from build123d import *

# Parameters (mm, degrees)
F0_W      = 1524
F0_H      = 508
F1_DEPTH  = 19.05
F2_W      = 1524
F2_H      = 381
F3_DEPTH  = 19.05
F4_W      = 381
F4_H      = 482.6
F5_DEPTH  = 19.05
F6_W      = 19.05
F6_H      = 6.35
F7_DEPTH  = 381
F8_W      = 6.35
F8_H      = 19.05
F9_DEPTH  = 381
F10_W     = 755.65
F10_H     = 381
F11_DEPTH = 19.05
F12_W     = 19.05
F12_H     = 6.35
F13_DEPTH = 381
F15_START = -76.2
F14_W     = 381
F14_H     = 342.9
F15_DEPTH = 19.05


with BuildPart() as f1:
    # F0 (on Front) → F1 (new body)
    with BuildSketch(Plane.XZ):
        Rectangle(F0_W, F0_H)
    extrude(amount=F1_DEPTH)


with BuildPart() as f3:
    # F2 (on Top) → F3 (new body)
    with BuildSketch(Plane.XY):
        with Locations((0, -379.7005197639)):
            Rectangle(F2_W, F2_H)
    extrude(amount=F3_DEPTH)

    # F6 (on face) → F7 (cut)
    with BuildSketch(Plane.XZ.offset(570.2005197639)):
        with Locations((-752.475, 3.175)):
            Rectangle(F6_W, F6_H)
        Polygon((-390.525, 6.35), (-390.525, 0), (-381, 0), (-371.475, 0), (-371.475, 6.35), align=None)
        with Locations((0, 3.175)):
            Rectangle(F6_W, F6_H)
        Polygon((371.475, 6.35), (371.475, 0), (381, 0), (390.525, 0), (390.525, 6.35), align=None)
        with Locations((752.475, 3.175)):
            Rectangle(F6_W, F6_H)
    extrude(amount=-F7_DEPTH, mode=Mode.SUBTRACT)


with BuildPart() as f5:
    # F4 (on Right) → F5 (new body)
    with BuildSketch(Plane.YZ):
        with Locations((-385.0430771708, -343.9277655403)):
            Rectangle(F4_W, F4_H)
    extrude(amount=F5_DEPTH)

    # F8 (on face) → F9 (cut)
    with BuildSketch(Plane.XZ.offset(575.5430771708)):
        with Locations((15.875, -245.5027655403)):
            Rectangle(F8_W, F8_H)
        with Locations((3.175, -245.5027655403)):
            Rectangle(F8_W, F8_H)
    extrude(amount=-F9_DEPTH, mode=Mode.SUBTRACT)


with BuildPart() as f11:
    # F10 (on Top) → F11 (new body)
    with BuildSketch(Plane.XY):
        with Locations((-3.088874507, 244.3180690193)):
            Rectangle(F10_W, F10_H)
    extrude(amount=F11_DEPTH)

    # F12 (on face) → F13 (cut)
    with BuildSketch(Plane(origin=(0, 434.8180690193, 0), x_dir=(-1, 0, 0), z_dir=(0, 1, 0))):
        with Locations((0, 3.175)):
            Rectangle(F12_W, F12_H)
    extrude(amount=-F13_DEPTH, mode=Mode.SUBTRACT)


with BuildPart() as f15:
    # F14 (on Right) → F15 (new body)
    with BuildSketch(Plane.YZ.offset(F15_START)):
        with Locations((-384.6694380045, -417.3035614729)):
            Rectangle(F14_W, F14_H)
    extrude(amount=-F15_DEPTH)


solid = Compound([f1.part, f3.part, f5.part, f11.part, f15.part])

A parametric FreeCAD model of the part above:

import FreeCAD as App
import Part
import Sketcher
Q = App.Units.Quantity

doc = App.newDocument("Part")
params = doc.addObject("Spreadsheet::Sheet", "Params")
for row, (alias, value) in enumerate([
    ("sketch1_width", "60 in"),
    ("sketch1_height", "20 in"),
    ("pad1_length", "0.75 in"),
    ("sketch2_width", "60 in"),
    ("sketch2_height", "15 in"),
    ("pad2_length", "0.75 in"),
    ("sketch3_width", "0.75 in"),
    ("sketch3_height", "0.25 in"),
    ("pocket1_length", "15 in"),
    ("sketch4_width", "15 in"),
    ("sketch4_height", "19 in"),
    ("pad3_length", "0.75 in"),
    ("sketch5_width", "0.25 in"),
    ("sketch5_height", "0.75 in"),
    ("pocket2_length", "15 in"),
    ("sketch6_height", "15 in"),
    ("sketch6_width", "29.75 in"),
    ("pad4_length", "0.75 in"),
    ("sketch7_width", "0.75 in"),
    ("sketch7_height", "0.25 in"),
    ("pocket3_length", "15 in"),
    ("sketch8_width", "15 in"),
    ("sketch8_height", "13.5 in"),
    ("pad5_length", "0.75 in"),
], start=1):
    params.set(f"A{row}", alias)
    params.set(f"B{row}", "=" + value)
    params.setAlias(f"B{row}", alias)

body = doc.addObject("PartDesign::Body", "Body")

# Sketch on XZ plane
sketch1 = body.newObject("Sketcher::SketchObject", "Sketch")
sketch1.AttachmentSupport = (doc.getObject("XZ_Plane"), [""])
sketch1.MapMode = "FlatFace"
sketch1.addGeometry(Part.LineSegment(App.Vector(-762, 254, 0), App.Vector(-762, -254, 0)), False)
sketch1.addGeometry(Part.LineSegment(App.Vector(-762, -254, 0), App.Vector(762, -254, 0)), False)
sketch1.addGeometry(Part.LineSegment(App.Vector(762, -254, 0), App.Vector(762, 254, 0)), False)
sketch1.addGeometry(Part.LineSegment(App.Vector(762, 254, 0), App.Vector(-762, 254, 0)), False)
sketch1.addConstraint(Sketcher.Constraint("Coincident", 0, 2, 1, 1))
sketch1.addConstraint(Sketcher.Constraint("Coincident", 1, 2, 2, 1))
sketch1.addConstraint(Sketcher.Constraint("Coincident", 2, 2, 3, 1))
sketch1.addConstraint(Sketcher.Constraint("Coincident", 3, 2, 0, 1))
sketch1.addConstraint(Sketcher.Constraint("Vertical", 0))
sketch1.addConstraint(Sketcher.Constraint("Horizontal", 1))
sketch1.addConstraint(Sketcher.Constraint("Vertical", 2))
sketch1.addConstraint(Sketcher.Constraint("Horizontal", 3))
sketch1.addConstraint(Sketcher.Constraint("Symmetric", 0, 2, 2, 2, -1, 1))
sketch1.addConstraint(Sketcher.Constraint("DistanceX", 1, 1, 1, 2, Q("60 in")))
sketch1.addConstraint(Sketcher.Constraint("DistanceY", 0, 2, 0, 1, Q("20 in")))
sketch1.setExpression("Constraints[9]", "Params.sketch1_width")
sketch1.setExpression("Constraints[10]", "Params.sketch1_height")
pad1 = body.newObject("PartDesign::Pad", "Pad")
pad1.Profile = sketch1
pad1.setExpression("Length", "Params.pad1_length")
body2 = doc.addObject("PartDesign::Body", "Body001")

# Sketch on XY plane
sketch2 = body2.newObject("Sketcher::SketchObject", "Sketch001")
sketch2.AttachmentSupport = (doc.getObject("XY_Plane001"), [""])
sketch2.MapMode = "FlatFace"
sketch2.addGeometry(Part.LineSegment(App.Vector(-762, -189.20052, 0), App.Vector(-762, -570.20052, 0)), False)
sketch2.addGeometry(Part.LineSegment(App.Vector(-762, -570.20052, 0), App.Vector(762, -570.20052, 0)), False)
sketch2.addGeometry(Part.LineSegment(App.Vector(762, -570.20052, 0), App.Vector(762, -189.20052, 0)), False)
sketch2.addGeometry(Part.LineSegment(App.Vector(762, -189.20052, 0), App.Vector(-762, -189.20052, 0)), False)
sketch2.addConstraint(Sketcher.Constraint("Coincident", 0, 2, 1, 1))
sketch2.addConstraint(Sketcher.Constraint("Coincident", 1, 2, 2, 1))
sketch2.addConstraint(Sketcher.Constraint("Coincident", 2, 2, 3, 1))
sketch2.addConstraint(Sketcher.Constraint("Coincident", 3, 2, 0, 1))
sketch2.addConstraint(Sketcher.Constraint("Vertical", 0))
sketch2.addConstraint(Sketcher.Constraint("Horizontal", 1))
sketch2.addConstraint(Sketcher.Constraint("Vertical", 2))
sketch2.addConstraint(Sketcher.Constraint("Horizontal", 3))
sketch2.addConstraint(Sketcher.Constraint("DistanceX", 1, 1, 1, 2, Q("60 in")))
sketch2.addConstraint(Sketcher.Constraint("DistanceY", 0, 2, 0, 1, Q("15 in")))
sketch2.addConstraint(Sketcher.Constraint("DistanceX", 0, 2, -1, 1, Q("30 in")))
sketch2.addConstraint(Sketcher.Constraint("DistanceY", 0, 2, -1, 1, Q("570.20052 mm")))
sketch2.setExpression("Constraints[8]", "Params.sketch2_width")
sketch2.setExpression("Constraints[9]", "Params.sketch2_height")
pad2 = body2.newObject("PartDesign::Pad", "Pad001")
pad2.Profile = sketch2
pad2.setExpression("Length", "Params.pad2_length")

# Sketch on XZ plane
sketch3 = body2.newObject("Sketcher::SketchObject", "Sketch002")
sketch3.AttachmentSupport = (doc.getObject("XZ_Plane001"), [""])
sketch3.MapMode = "FlatFace"
sketch3.AttachmentOffset = App.Placement(App.Vector(0, 0, 570.20052), App.Rotation())
sketch3.addGeometry(Part.LineSegment(App.Vector(-762, 6.35, 0), App.Vector(-762, 0, 0)), False)
sketch3.addGeometry(Part.LineSegment(App.Vector(-762, 0, 0), App.Vector(-742.95, 0, 0)), False)
sketch3.addGeometry(Part.LineSegment(App.Vector(-742.95, 0, 0), App.Vector(-742.95, 6.35, 0)), False)
sketch3.addGeometry(Part.LineSegment(App.Vector(-742.95, 6.35, 0), App.Vector(-762, 6.35, 0)), False)
sketch3.addGeometry(Part.LineSegment(App.Vector(-390.525, 6.35, 0), App.Vector(-390.525, 0, 0)), False)
sketch3.addGeometry(Part.LineSegment(App.Vector(-390.525, 0, 0), App.Vector(-371.475, 0, 0)), False)
sketch3.addGeometry(Part.LineSegment(App.Vector(-371.475, 0, 0), App.Vector(-371.475, 6.35, 0)), False)
sketch3.addGeometry(Part.LineSegment(App.Vector(-371.475, 6.35, 0), App.Vector(-390.525, 6.35, 0)), False)
sketch3.addGeometry(Part.LineSegment(App.Vector(-9.525, 6.35, 0), App.Vector(-9.525, 0, 0)), False)
sketch3.addGeometry(Part.LineSegment(App.Vector(-9.525, 0, 0), App.Vector(9.525, 0, 0)), False)
sketch3.addGeometry(Part.LineSegment(App.Vector(9.525, 0, 0), App.Vector(9.525, 6.35, 0)), False)
sketch3.addGeometry(Part.LineSegment(App.Vector(9.525, 6.35, 0), App.Vector(-9.525, 6.35, 0)), False)
sketch3.addGeometry(Part.LineSegment(App.Vector(371.475, 6.35, 0), App.Vector(371.475, 0, 0)), False)
sketch3.addGeometry(Part.LineSegment(App.Vector(371.475, 0, 0), App.Vector(390.525, 0, 0)), False)
sketch3.addGeometry(Part.LineSegment(App.Vector(390.525, 0, 0), App.Vector(390.525, 6.35, 0)), False)
sketch3.addGeometry(Part.LineSegment(App.Vector(390.525, 6.35, 0), App.Vector(371.475, 6.35, 0)), False)
sketch3.addGeometry(Part.LineSegment(App.Vector(742.95, 6.35, 0), App.Vector(742.95, 0, 0)), False)
sketch3.addGeometry(Part.LineSegment(App.Vector(742.95, 0, 0), App.Vector(762, 0, 0)), False)
sketch3.addGeometry(Part.LineSegment(App.Vector(762, 0, 0), App.Vector(762, 6.35, 0)), False)
sketch3.addGeometry(Part.LineSegment(App.Vector(762, 6.35, 0), App.Vector(742.95, 6.35, 0)), False)
sketch3.addConstraint(Sketcher.Constraint("Coincident", 0, 2, 1, 1))
sketch3.addConstraint(Sketcher.Constraint("Coincident", 1, 2, 2, 1))
sketch3.addConstraint(Sketcher.Constraint("Coincident", 2, 2, 3, 1))
sketch3.addConstraint(Sketcher.Constraint("Coincident", 3, 2, 0, 1))
sketch3.addConstraint(Sketcher.Constraint("Coincident", 4, 2, 5, 1))
sketch3.addConstraint(Sketcher.Constraint("Coincident", 5, 2, 6, 1))
sketch3.addConstraint(Sketcher.Constraint("Coincident", 6, 2, 7, 1))
sketch3.addConstraint(Sketcher.Constraint("Coincident", 7, 2, 4, 1))
sketch3.addConstraint(Sketcher.Constraint("Coincident", 8, 2, 9, 1))
sketch3.addConstraint(Sketcher.Constraint("Coincident", 9, 2, 10, 1))
sketch3.addConstraint(Sketcher.Constraint("Coincident", 10, 2, 11, 1))
sketch3.addConstraint(Sketcher.Constraint("Coincident", 11, 2, 8, 1))
sketch3.addConstraint(Sketcher.Constraint("Coincident", 12, 2, 13, 1))
sketch3.addConstraint(Sketcher.Constraint("Coincident", 13, 2, 14, 1))
sketch3.addConstraint(Sketcher.Constraint("Coincident", 14, 2, 15, 1))
sketch3.addConstraint(Sketcher.Constraint("Coincident", 15, 2, 12, 1))
sketch3.addConstraint(Sketcher.Constraint("Coincident", 16, 2, 17, 1))
sketch3.addConstraint(Sketcher.Constraint("Coincident", 17, 2, 18, 1))
sketch3.addConstraint(Sketcher.Constraint("Coincident", 18, 2, 19, 1))
sketch3.addConstraint(Sketcher.Constraint("Coincident", 19, 2, 16, 1))
sketch3.addConstraint(Sketcher.Constraint("Vertical", 0))
sketch3.addConstraint(Sketcher.Constraint("Horizontal", 1))
sketch3.addConstraint(Sketcher.Constraint("Vertical", 2))
sketch3.addConstraint(Sketcher.Constraint("Horizontal", 3))
sketch3.addConstraint(Sketcher.Constraint("Vertical", 4))
sketch3.addConstraint(Sketcher.Constraint("Horizontal", 5))
sketch3.addConstraint(Sketcher.Constraint("Vertical", 6))
sketch3.addConstraint(Sketcher.Constraint("Horizontal", 7))
sketch3.addConstraint(Sketcher.Constraint("Vertical", 8))
sketch3.addConstraint(Sketcher.Constraint("Horizontal", 9))
sketch3.addConstraint(Sketcher.Constraint("Vertical", 10))
sketch3.addConstraint(Sketcher.Constraint("Horizontal", 11))
sketch3.addConstraint(Sketcher.Constraint("Vertical", 12))
sketch3.addConstraint(Sketcher.Constraint("Horizontal", 13))
sketch3.addConstraint(Sketcher.Constraint("Vertical", 14))
sketch3.addConstraint(Sketcher.Constraint("Horizontal", 15))
sketch3.addConstraint(Sketcher.Constraint("Vertical", 16))
sketch3.addConstraint(Sketcher.Constraint("Horizontal", 17))
sketch3.addConstraint(Sketcher.Constraint("Vertical", 18))
sketch3.addConstraint(Sketcher.Constraint("Horizontal", 19))
sketch3.addConstraint(Sketcher.Constraint("Symmetric", 8, 2, 9, 2, -1, 1))
sketch3.addConstraint(Sketcher.Constraint("Symmetric", 5, 2, 12, 2, -1, 1))
sketch3.addConstraint(Sketcher.Constraint("Symmetric", 1, 2, 16, 2, -1, 1))
sketch3.addConstraint(Sketcher.Constraint("Symmetric", 4, 2, 13, 2, -2))
sketch3.addConstraint(Sketcher.Constraint("Symmetric", 0, 2, 17, 2, -2))
sketch3.addConstraint(Sketcher.Constraint("Horizontal", 3, 2, 6, 2))
sketch3.addConstraint(Sketcher.Constraint("Horizontal", 7, 2, 10, 2))
sketch3.addConstraint(Sketcher.Constraint("Horizontal", 11, 2, 14, 2))
sketch3.addConstraint(Sketcher.Constraint("Horizontal", 15, 2, 18, 2))
sketch3.addConstraint(Sketcher.Constraint("Equal", 3, 5))
sketch3.addConstraint(Sketcher.Constraint("Equal", 7, 9))
sketch3.addConstraint(Sketcher.Constraint("DistanceX", 0, 2, -1, 1, Q("30 in")))
sketch3.addConstraint(Sketcher.Constraint("DistanceX", 4, 2, 8, 2, Q("15 in")))
sketch3.addConstraint(Sketcher.Constraint("DistanceX", 1, 1, 1, 2, Q("0.75 in")))
sketch3.addConstraint(Sketcher.Constraint("DistanceY", 0, 2, 0, 1, Q("0.25 in")))
sketch3.setExpression("Constraints[53]", "Params.sketch3_width")
sketch3.setExpression("Constraints[54]", "Params.sketch3_height")
pocket1 = body2.newObject("PartDesign::Pocket", "Pocket")
pocket1.Profile = sketch3
pocket1.setExpression("Length", "Params.pocket1_length")
body3 = doc.addObject("PartDesign::Body", "Body002")

# Sketch on YZ plane
sketch4 = body3.newObject("Sketcher::SketchObject", "Sketch003")
sketch4.AttachmentSupport = (doc.getObject("YZ_Plane002"), [""])
sketch4.MapMode = "FlatFace"
sketch4.addGeometry(Part.LineSegment(App.Vector(-575.543077, -102.627766, 0), App.Vector(-575.543077, -585.227766, 0)), False)
sketch4.addGeometry(Part.LineSegment(App.Vector(-575.543077, -585.227766, 0), App.Vector(-194.543077, -585.227766, 0)), False)
sketch4.addGeometry(Part.LineSegment(App.Vector(-194.543077, -585.227766, 0), App.Vector(-194.543077, -102.627766, 0)), False)
sketch4.addGeometry(Part.LineSegment(App.Vector(-194.543077, -102.627766, 0), App.Vector(-575.543077, -102.627766, 0)), False)
sketch4.addConstraint(Sketcher.Constraint("Coincident", 0, 2, 1, 1))
sketch4.addConstraint(Sketcher.Constraint("Coincident", 1, 2, 2, 1))
sketch4.addConstraint(Sketcher.Constraint("Coincident", 2, 2, 3, 1))
sketch4.addConstraint(Sketcher.Constraint("Coincident", 3, 2, 0, 1))
sketch4.addConstraint(Sketcher.Constraint("Vertical", 0))
sketch4.addConstraint(Sketcher.Constraint("Horizontal", 1))
sketch4.addConstraint(Sketcher.Constraint("Vertical", 2))
sketch4.addConstraint(Sketcher.Constraint("Horizontal", 3))
sketch4.addConstraint(Sketcher.Constraint("DistanceX", 1, 1, 1, 2, Q("15 in")))
sketch4.addConstraint(Sketcher.Constraint("DistanceY", 0, 2, 0, 1, Q("19 in")))
sketch4.addConstraint(Sketcher.Constraint("DistanceX", 0, 2, -1, 1, Q("575.543077 mm")))
sketch4.addConstraint(Sketcher.Constraint("DistanceY", 0, 2, -1, 1, Q("585.227766 mm")))
sketch4.setExpression("Constraints[8]", "Params.sketch4_width")
sketch4.setExpression("Constraints[9]", "Params.sketch4_height")
pad3 = body3.newObject("PartDesign::Pad", "Pad002")
pad3.Profile = sketch4
pad3.setExpression("Length", "Params.pad3_length")

# Sketch on XZ plane
sketch5 = body3.newObject("Sketcher::SketchObject", "Sketch004")
sketch5.AttachmentSupport = (doc.getObject("XZ_Plane002"), [""])
sketch5.MapMode = "FlatFace"
sketch5.AttachmentOffset = App.Placement(App.Vector(0, 0, 575.543077), App.Rotation())
sketch5.addGeometry(Part.LineSegment(App.Vector(12.7, -235.977766, 0), App.Vector(12.7, -255.027766, 0)), False)
sketch5.addGeometry(Part.LineSegment(App.Vector(12.7, -255.027766, 0), App.Vector(19.05, -255.027766, 0)), False)
sketch5.addGeometry(Part.LineSegment(App.Vector(19.05, -255.027766, 0), App.Vector(19.05, -235.977766, 0)), False)
sketch5.addGeometry(Part.LineSegment(App.Vector(19.05, -235.977766, 0), App.Vector(12.7, -235.977766, 0)), False)
sketch5.addGeometry(Part.LineSegment(App.Vector(0, -235.977766, 0), App.Vector(0, -255.027766, 0)), False)
sketch5.addGeometry(Part.LineSegment(App.Vector(0, -255.027766, 0), App.Vector(6.35, -255.027766, 0)), False)
sketch5.addGeometry(Part.LineSegment(App.Vector(6.35, -255.027766, 0), App.Vector(6.35, -235.977766, 0)), False)
sketch5.addGeometry(Part.LineSegment(App.Vector(6.35, -235.977766, 0), App.Vector(0, -235.977766, 0)), False)
sketch5.addConstraint(Sketcher.Constraint("Coincident", 0, 2, 1, 1))
sketch5.addConstraint(Sketcher.Constraint("Coincident", 1, 2, 2, 1))
sketch5.addConstraint(Sketcher.Constraint("Coincident", 2, 2, 3, 1))
sketch5.addConstraint(Sketcher.Constraint("Coincident", 3, 2, 0, 1))
sketch5.addConstraint(Sketcher.Constraint("Coincident", 4, 2, 5, 1))
sketch5.addConstraint(Sketcher.Constraint("Coincident", 5, 2, 6, 1))
sketch5.addConstraint(Sketcher.Constraint("Coincident", 6, 2, 7, 1))
sketch5.addConstraint(Sketcher.Constraint("Coincident", 7, 2, 4, 1))
sketch5.addConstraint(Sketcher.Constraint("Vertical", 0))
sketch5.addConstraint(Sketcher.Constraint("Horizontal", 1))
sketch5.addConstraint(Sketcher.Constraint("Vertical", 2))
sketch5.addConstraint(Sketcher.Constraint("Horizontal", 3))
sketch5.addConstraint(Sketcher.Constraint("Vertical", 4))
sketch5.addConstraint(Sketcher.Constraint("Horizontal", 5))
sketch5.addConstraint(Sketcher.Constraint("Vertical", 6))
sketch5.addConstraint(Sketcher.Constraint("Horizontal", 7))
sketch5.addConstraint(Sketcher.Constraint("PointOnObject", 4, 2, -2))
sketch5.addConstraint(Sketcher.Constraint("Horizontal", 1, 2, 4, 2))
sketch5.addConstraint(Sketcher.Constraint("Horizontal", 3, 2, 6, 2))
sketch5.addConstraint(Sketcher.Constraint("Equal", 3, 5))
sketch5.addConstraint(Sketcher.Constraint("DistanceX", 1, 1, 1, 2, Q("0.25 in")))
sketch5.addConstraint(Sketcher.Constraint("DistanceY", 0, 2, 0, 1, Q("0.75 in")))
sketch5.addConstraint(Sketcher.Constraint("DistanceX", -1, 1, 0, 2, Q("0.5 in")))
sketch5.addConstraint(Sketcher.Constraint("DistanceY", 0, 2, -1, 1, Q("255.027766 mm")))
sketch5.setExpression("Constraints[20]", "Params.sketch5_width")
sketch5.setExpression("Constraints[21]", "Params.sketch5_height")
pocket2 = body3.newObject("PartDesign::Pocket", "Pocket001")
pocket2.Profile = sketch5
pocket2.setExpression("Length", "Params.pocket2_length")
body4 = doc.addObject("PartDesign::Body", "Body003")

# Sketch on XY plane
sketch6 = body4.newObject("Sketcher::SketchObject", "Sketch005")
sketch6.AttachmentSupport = (doc.getObject("XY_Plane003"), [""])
sketch6.MapMode = "FlatFace"
sketch6.addGeometry(Part.LineSegment(App.Vector(-380.913875, 434.818069, 0), App.Vector(-380.913875, 53.818069, 0)), False)
sketch6.addGeometry(Part.LineSegment(App.Vector(-380.913875, 53.818069, 0), App.Vector(374.736125, 53.818069, 0)), False)
sketch6.addGeometry(Part.LineSegment(App.Vector(374.736125, 53.818069, 0), App.Vector(374.736125, 434.818069, 0)), False)
sketch6.addGeometry(Part.LineSegment(App.Vector(374.736125, 434.818069, 0), App.Vector(-380.913875, 434.818069, 0)), False)
sketch6.addConstraint(Sketcher.Constraint("Coincident", 0, 2, 1, 1))
sketch6.addConstraint(Sketcher.Constraint("Coincident", 1, 2, 2, 1))
sketch6.addConstraint(Sketcher.Constraint("Coincident", 2, 2, 3, 1))
sketch6.addConstraint(Sketcher.Constraint("Coincident", 3, 2, 0, 1))
sketch6.addConstraint(Sketcher.Constraint("Vertical", 0))
sketch6.addConstraint(Sketcher.Constraint("Horizontal", 1))
sketch6.addConstraint(Sketcher.Constraint("Vertical", 2))
sketch6.addConstraint(Sketcher.Constraint("Horizontal", 3))
sketch6.addConstraint(Sketcher.Constraint("DistanceY", 0, 2, 0, 1, Q("15 in")))
sketch6.addConstraint(Sketcher.Constraint("DistanceX", 1, 1, 1, 2, Q("29.75 in")))
sketch6.addConstraint(Sketcher.Constraint("DistanceY", -1, 1, 0, 2, Q("53.818069 mm")))
sketch6.addConstraint(Sketcher.Constraint("DistanceX", 0, 2, -1, 1, Q("380.913875 mm")))
sketch6.setExpression("Constraints[8]", "Params.sketch6_height")
sketch6.setExpression("Constraints[9]", "Params.sketch6_width")
pad4 = body4.newObject("PartDesign::Pad", "Pad003")
pad4.Profile = sketch6
pad4.setExpression("Length", "Params.pad4_length")

# Sketch on XZ plane
sketch7 = body4.newObject("Sketcher::SketchObject", "Sketch006")
sketch7.AttachmentSupport = (doc.getObject("XZ_Plane003"), [""])
sketch7.MapMode = "FlatFace"
sketch7.AttachmentOffset = App.Placement(App.Vector(0, 0, -434.818069), App.Rotation())
sketch7.addGeometry(Part.LineSegment(App.Vector(9.525, 6.35, 0), App.Vector(9.525, 0, 0)), False)
sketch7.addGeometry(Part.LineSegment(App.Vector(9.525, 0, 0), App.Vector(-9.525, 0, 0)), False)
sketch7.addGeometry(Part.LineSegment(App.Vector(-9.525, 0, 0), App.Vector(-9.525, 6.35, 0)), False)
sketch7.addGeometry(Part.LineSegment(App.Vector(-9.525, 6.35, 0), App.Vector(9.525, 6.35, 0)), False)
sketch7.addConstraint(Sketcher.Constraint("Coincident", 0, 2, 1, 1))
sketch7.addConstraint(Sketcher.Constraint("Coincident", 1, 2, 2, 1))
sketch7.addConstraint(Sketcher.Constraint("Coincident", 2, 2, 3, 1))
sketch7.addConstraint(Sketcher.Constraint("Coincident", 3, 2, 0, 1))
sketch7.addConstraint(Sketcher.Constraint("Vertical", 0))
sketch7.addConstraint(Sketcher.Constraint("Horizontal", 1))
sketch7.addConstraint(Sketcher.Constraint("Vertical", 2))
sketch7.addConstraint(Sketcher.Constraint("Horizontal", 3))
sketch7.addConstraint(Sketcher.Constraint("Symmetric", 0, 2, 1, 2, -1, 1))
sketch7.addConstraint(Sketcher.Constraint("DistanceX", 1, 2, 1, 1, Q("0.75 in")))
sketch7.addConstraint(Sketcher.Constraint("DistanceY", 0, 2, 0, 1, Q("0.25 in")))
sketch7.setExpression("Constraints[9]", "Params.sketch7_width")
sketch7.setExpression("Constraints[10]", "Params.sketch7_height")
pocket3 = body4.newObject("PartDesign::Pocket", "Pocket002")
pocket3.Profile = sketch7
pocket3.setExpression("Length", "Params.pocket3_length")
pocket3.Reversed = True
body5 = doc.addObject("PartDesign::Body", "Body004")

# Sketch on YZ plane
sketch8 = body5.newObject("Sketcher::SketchObject", "Sketch007")
sketch8.AttachmentSupport = (doc.getObject("YZ_Plane004"), [""])
sketch8.MapMode = "FlatFace"
sketch8.AttachmentOffset = App.Placement(App.Vector(0, 0, -3 * 25.4), App.Rotation())
sketch8.addGeometry(Part.LineSegment(App.Vector(-575.169438, -245.853561, 0), App.Vector(-575.169438, -588.753561, 0)), False)
sketch8.addGeometry(Part.LineSegment(App.Vector(-575.169438, -588.753561, 0), App.Vector(-194.169438, -588.753561, 0)), False)
sketch8.addGeometry(Part.LineSegment(App.Vector(-194.169438, -588.753561, 0), App.Vector(-194.169438, -245.853561, 0)), False)
sketch8.addGeometry(Part.LineSegment(App.Vector(-194.169438, -245.853561, 0), App.Vector(-575.169438, -245.853561, 0)), False)
sketch8.addConstraint(Sketcher.Constraint("Coincident", 0, 2, 1, 1))
sketch8.addConstraint(Sketcher.Constraint("Coincident", 1, 2, 2, 1))
sketch8.addConstraint(Sketcher.Constraint("Coincident", 2, 2, 3, 1))
sketch8.addConstraint(Sketcher.Constraint("Coincident", 3, 2, 0, 1))
sketch8.addConstraint(Sketcher.Constraint("Vertical", 0))
sketch8.addConstraint(Sketcher.Constraint("Horizontal", 1))
sketch8.addConstraint(Sketcher.Constraint("Vertical", 2))
sketch8.addConstraint(Sketcher.Constraint("Horizontal", 3))
sketch8.addConstraint(Sketcher.Constraint("DistanceX", 1, 1, 1, 2, Q("15 in")))
sketch8.addConstraint(Sketcher.Constraint("DistanceY", 0, 2, 0, 1, Q("13.5 in")))
sketch8.addConstraint(Sketcher.Constraint("DistanceX", 0, 2, -1, 1, Q("575.169438 mm")))
sketch8.addConstraint(Sketcher.Constraint("DistanceY", 0, 2, -1, 1, Q("588.753561 mm")))
sketch8.setExpression("Constraints[8]", "Params.sketch8_width")
sketch8.setExpression("Constraints[9]", "Params.sketch8_height")
pad5 = body5.newObject("PartDesign::Pad", "Pad004")
pad5.Profile = sketch8
pad5.setExpression("Length", "Params.pad5_length")
pad5.Reversed = True

doc.recompute()
